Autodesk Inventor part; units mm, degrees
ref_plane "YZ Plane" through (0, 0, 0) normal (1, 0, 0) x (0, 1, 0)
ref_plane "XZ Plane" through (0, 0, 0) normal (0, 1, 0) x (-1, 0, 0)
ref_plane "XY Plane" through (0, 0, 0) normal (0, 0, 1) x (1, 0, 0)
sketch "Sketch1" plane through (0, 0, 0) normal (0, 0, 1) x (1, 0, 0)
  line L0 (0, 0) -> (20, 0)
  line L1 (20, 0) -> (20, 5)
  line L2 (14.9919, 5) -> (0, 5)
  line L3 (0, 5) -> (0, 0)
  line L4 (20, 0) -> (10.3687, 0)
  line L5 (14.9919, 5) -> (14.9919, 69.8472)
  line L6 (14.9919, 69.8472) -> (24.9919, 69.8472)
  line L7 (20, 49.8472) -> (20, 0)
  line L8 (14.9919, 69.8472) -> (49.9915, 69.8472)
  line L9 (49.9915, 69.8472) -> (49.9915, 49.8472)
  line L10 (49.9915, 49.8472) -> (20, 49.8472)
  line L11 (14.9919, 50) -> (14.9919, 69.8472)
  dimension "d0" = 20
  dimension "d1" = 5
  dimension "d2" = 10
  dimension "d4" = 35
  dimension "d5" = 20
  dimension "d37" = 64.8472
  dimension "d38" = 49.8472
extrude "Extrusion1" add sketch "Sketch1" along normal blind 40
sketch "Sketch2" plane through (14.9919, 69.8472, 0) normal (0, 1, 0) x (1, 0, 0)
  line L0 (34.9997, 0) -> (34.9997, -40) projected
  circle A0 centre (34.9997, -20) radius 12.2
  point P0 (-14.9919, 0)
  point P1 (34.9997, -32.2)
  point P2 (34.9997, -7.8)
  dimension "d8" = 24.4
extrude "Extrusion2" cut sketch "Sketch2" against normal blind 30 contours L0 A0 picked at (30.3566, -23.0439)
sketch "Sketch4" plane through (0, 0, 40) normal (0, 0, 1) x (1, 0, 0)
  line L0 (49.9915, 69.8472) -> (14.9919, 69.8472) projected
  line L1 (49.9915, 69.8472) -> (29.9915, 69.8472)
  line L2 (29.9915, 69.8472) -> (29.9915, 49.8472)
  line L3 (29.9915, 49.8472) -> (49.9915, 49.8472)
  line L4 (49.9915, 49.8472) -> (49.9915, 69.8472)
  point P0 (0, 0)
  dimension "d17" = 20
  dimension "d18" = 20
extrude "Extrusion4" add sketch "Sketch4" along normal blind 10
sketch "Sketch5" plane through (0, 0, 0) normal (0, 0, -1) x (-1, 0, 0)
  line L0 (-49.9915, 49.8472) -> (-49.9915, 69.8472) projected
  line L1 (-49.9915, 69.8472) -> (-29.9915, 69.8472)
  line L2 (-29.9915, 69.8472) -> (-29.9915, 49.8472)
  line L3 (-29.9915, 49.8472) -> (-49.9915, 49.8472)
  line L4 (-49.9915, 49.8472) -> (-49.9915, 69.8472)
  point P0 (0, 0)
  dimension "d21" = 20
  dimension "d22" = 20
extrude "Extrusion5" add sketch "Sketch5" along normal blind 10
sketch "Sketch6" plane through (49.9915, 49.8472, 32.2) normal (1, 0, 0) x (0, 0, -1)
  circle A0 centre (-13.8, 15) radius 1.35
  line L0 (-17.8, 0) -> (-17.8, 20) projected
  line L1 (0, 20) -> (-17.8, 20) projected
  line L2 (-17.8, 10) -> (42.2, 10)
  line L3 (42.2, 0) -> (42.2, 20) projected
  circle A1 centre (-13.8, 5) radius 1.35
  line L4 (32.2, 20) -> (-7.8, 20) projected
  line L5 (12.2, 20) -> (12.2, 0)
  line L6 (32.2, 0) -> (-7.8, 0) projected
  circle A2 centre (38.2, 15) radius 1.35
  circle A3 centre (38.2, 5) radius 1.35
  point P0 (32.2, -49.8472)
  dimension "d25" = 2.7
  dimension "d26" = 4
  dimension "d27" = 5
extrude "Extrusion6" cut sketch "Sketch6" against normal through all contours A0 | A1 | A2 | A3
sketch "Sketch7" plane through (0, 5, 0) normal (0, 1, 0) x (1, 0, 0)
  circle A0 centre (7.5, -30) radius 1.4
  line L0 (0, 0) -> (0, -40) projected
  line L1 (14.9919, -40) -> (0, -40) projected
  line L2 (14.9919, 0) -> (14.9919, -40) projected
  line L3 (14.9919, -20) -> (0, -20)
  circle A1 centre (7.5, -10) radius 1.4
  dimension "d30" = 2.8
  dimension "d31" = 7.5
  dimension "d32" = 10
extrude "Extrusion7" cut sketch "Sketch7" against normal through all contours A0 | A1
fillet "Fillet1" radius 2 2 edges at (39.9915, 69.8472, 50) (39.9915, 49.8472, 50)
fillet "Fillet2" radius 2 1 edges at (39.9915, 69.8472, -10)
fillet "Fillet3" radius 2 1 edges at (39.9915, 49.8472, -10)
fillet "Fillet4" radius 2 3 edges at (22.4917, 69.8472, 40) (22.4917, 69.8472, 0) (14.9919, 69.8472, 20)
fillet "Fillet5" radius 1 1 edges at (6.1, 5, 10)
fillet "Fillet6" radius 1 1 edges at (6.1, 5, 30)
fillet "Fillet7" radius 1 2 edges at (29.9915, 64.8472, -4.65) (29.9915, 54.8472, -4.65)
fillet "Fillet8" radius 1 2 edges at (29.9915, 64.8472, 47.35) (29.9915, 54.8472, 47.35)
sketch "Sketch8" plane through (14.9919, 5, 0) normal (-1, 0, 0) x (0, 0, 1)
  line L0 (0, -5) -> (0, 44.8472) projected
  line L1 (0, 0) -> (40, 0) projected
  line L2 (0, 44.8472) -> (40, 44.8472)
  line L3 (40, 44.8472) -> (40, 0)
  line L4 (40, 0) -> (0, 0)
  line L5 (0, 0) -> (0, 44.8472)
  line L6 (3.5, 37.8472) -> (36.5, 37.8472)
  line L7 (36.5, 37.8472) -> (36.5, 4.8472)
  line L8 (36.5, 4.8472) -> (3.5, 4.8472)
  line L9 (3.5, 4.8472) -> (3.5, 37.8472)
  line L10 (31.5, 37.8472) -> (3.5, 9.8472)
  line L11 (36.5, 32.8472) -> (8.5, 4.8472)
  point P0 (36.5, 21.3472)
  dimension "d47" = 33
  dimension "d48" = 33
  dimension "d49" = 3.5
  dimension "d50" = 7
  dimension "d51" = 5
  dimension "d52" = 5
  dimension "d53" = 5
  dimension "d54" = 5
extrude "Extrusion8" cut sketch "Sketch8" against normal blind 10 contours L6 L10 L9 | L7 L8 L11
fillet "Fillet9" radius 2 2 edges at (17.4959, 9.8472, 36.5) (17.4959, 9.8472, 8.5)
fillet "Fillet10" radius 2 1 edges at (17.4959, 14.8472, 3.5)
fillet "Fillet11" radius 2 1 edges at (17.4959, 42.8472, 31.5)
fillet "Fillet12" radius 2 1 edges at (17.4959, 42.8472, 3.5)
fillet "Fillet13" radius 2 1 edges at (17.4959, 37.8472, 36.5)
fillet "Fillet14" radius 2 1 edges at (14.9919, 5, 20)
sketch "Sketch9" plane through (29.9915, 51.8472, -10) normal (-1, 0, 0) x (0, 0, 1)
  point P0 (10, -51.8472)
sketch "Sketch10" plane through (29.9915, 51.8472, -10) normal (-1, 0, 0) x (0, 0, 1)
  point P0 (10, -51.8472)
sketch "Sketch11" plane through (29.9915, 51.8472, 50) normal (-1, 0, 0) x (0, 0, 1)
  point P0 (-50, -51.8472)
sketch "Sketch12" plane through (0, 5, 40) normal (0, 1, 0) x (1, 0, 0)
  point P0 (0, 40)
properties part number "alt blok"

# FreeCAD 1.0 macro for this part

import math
import FreeCAD as App
import Part
import Sketcher
from FreeCAD import Vector


def edges_at(feature, points):
    """Names of the edges that pass closest to the given points."""
    edges = feature.Shape.Edges
    near = lambda p: min(range(len(edges)), key=lambda i: edges[i].distToShape(Part.Vertex(*p))[0])
    return sorted({f"Edge{near(p) + 1}" for p in points})


def add_polygon(sketch, points):
    """Adds a closed chain of lines whose ends are joined by coincident constraints."""
    first, n = sketch.GeometryCount, len(points)
    for a, b in zip(points, points[1:] + points[:1]):
        sketch.addGeometry(Part.LineSegment(App.Vector(*a, 0), App.Vector(*b, 0)), False)
    for i in range(n):
        sketch.addConstraint(Sketcher.Constraint("Coincident", first + i, 2, first + (i + 1) % n, 1))

doc = App.newDocument("Part")
body = doc.addObject("PartDesign::Body", "Body")

sketch1 = body.newObject("Sketcher::SketchObject", "Sketch")
sketch1.AttachmentSupport = (doc.getObject("XY_Plane"), [""])
sketch1.MapMode = "FlatFace"
add_polygon(sketch1, [(0, 5), (0, 0), (20, 0), (20, 50), (50, 50), (50, 70), (15, 70), (15, 5)])
sketch1.addConstraint([
    Sketcher.Constraint("Vertical", 0),
    Sketcher.Constraint("Horizontal", 1),
    Sketcher.Constraint("Vertical", 2),
    Sketcher.Constraint("Horizontal", 3),
    Sketcher.Constraint("Vertical", 4),
    Sketcher.Constraint("Horizontal", 5),
    Sketcher.Constraint("Vertical", 6),
    Sketcher.Constraint("Horizontal", 7),
    Sketcher.Constraint("Coincident", 0, 2, -1, 1),
    Sketcher.Constraint("Equal", 1, 4),
    Sketcher.Constraint("DistanceX", 1, 1, 1, 2, 20.0),
    Sketcher.Constraint("DistanceY", 0, 2, 0, 1, 5.0),
    Sketcher.Constraint("DistanceX", 5, 2, 5, 1, 34.9996),
    Sketcher.Constraint("DistanceY", 2, 1, 2, 2, 49.8472),
    Sketcher.Constraint("DistanceX", 7, 2, 7, 1, 14.992),
])
pad1 = body.newObject("PartDesign::Pad", "Pad")
pad1.Profile = sketch1
pad1.Length = 40

sketch2 = body.newObject("Sketcher::SketchObject", "Sketch001")
sketch2.AttachmentSupport = (doc.getObject("XZ_Plane"), [""])
sketch2.MapMode = "FlatFace"
sketch2.AttachmentOffset = App.Placement(Vector(0, 0, -69.8472), App.Rotation())
sketch2.addGeometry([
    Part.LineSegment(Vector(50, 32, 0), Vector(50, 8, 0)),
    Part.ArcOfCircle(Part.Circle(Vector(50, 20, 0), Vector(0, 0, 1), 12), math.radians(90), math.radians(270)),
], False)
sketch2.addConstraint([
    Sketcher.Constraint("Coincident", 0, 1, 1, 1),
    Sketcher.Constraint("Coincident", 1, 2, 0, 2),
    Sketcher.Constraint("Vertical", 0),
    Sketcher.Constraint("Vertical", 1, 3, 0, 1),
    Sketcher.Constraint("Radius", 1, 12.2),
    Sketcher.Constraint("DistanceY", -1, 1, 1, 3, 20.0),
    Sketcher.Constraint("DistanceX", -1, 1, 1, 3, 49.9916),
])
pocket1 = body.newObject("PartDesign::Pocket", "Pocket")
pocket1.Profile = sketch2
pocket1.Length = 30
pocket1.Reversed = True

sketch3 = body.newObject("Sketcher::SketchObject", "Sketch002")
sketch3.AttachmentSupport = (doc.getObject("XY_Plane"), [""])
sketch3.MapMode = "FlatFace"
sketch3.AttachmentOffset = App.Placement(Vector(0, 0, 40), App.Rotation())
add_polygon(sketch3, [(50, 50), (50, 70), (30, 70), (30, 50)])
sketch3.addConstraint([
    Sketcher.Constraint("Vertical", 0),
    Sketcher.Constraint("Horizontal", 1),
    Sketcher.Constraint("Vertical", 2),
    Sketcher.Constraint("Horizontal", 3),
    Sketcher.Constraint("Equal", 3, 0),
    Sketcher.Constraint("DistanceX", 1, 2, 1, 1, 20.0),
    Sketcher.Constraint("DistanceX", -1, 1, 0, 2, 49.9915),
    Sketcher.Constraint("DistanceY", -1, 1, 0, 2, 69.8472),
])
pad2 = body.newObject("PartDesign::Pad", "Pad001")
pad2.Profile = sketch3
pad2.Length = 10

sketch4 = body.newObject("Sketcher::SketchObject", "Sketch003")
sketch4.AttachmentSupport = (doc.getObject("XY_Plane"), [""])
sketch4.MapMode = "FlatFace"
add_polygon(sketch4, [(50, 70), (50, 50), (30, 50), (30, 70)])
sketch4.addConstraint([
    Sketcher.Constraint("Vertical", 0),
    Sketcher.Constraint("Horizontal", 1),
    Sketcher.Constraint("Vertical", 2),
    Sketcher.Constraint("Horizontal", 3),
    Sketcher.Constraint("Equal", 3, 0),
    Sketcher.Constraint("DistanceX", 1, 2, 1, 1, 20.0),
    Sketcher.Constraint("DistanceX", -1, 1, 0, 2, 49.9915),
    Sketcher.Constraint("DistanceY", -1, 1, 0, 2, 49.8472),
])
pad3 = body.newObject("PartDesign::Pad", "Pad002")
pad3.Profile = sketch4
pad3.Length = 10
pad3.Reversed = True

sketch5 = body.newObject("Sketcher::SketchObject", "Sketch004")
sketch5.AttachmentSupport = (doc.getObject("YZ_Plane"), [""])
sketch5.MapMode = "FlatFace"
sketch5.AttachmentOffset = App.Placement(Vector(0, 0, 49.9915), App.Rotation())
sketch5.addGeometry([
    Part.Circle(Vector(64.8, 46, 0), Vector(0, 0, 1), 1.4),
    Part.Circle(Vector(54.8, 46, 0), Vector(0, 0, 1), 1.4),
    Part.Circle(Vector(64.8, -6, 0), Vector(0, 0, 1), 1.4),
    Part.Circle(Vector(54.8, -6, 0), Vector(0, 0, 1), 1.4),
], False)
sketch5.addConstraint([
    Sketcher.Constraint("Equal", 0, 1),
    Sketcher.Constraint("Equal", 1, 2),
    Sketcher.Constraint("Equal", 2, 3),
    Sketcher.Constraint("Horizontal", 0, 3, 1, 3),
    Sketcher.Constraint("Horizontal", 2, 3, 3, 3),
    Sketcher.Constraint("Vertical", 0, 3, 2, 3),
    Sketcher.Constraint("Vertical", 1, 3, 3, 3),
    Sketcher.Constraint("Diameter", 0, 2.7),
    Sketcher.Constraint("DistanceY", -1, 1, 0, 3, 46.0),
    Sketcher.Constraint("DistanceY", 2, 3, -1, 1, 6.0),
    Sketcher.Constraint("DistanceX", 1, 3, 0, 3, 10.0),
    Sketcher.Constraint("DistanceX", -1, 1, 0, 3, 64.8472),
])
pocket2 = body.newObject("PartDesign::Pocket", "Pocket001")
pocket2.Profile = sketch5
pocket2.Type = "ThroughAll"

sketch6 = body.newObject("Sketcher::SketchObject", "Sketch005")
sketch6.AttachmentSupport = (doc.getObject("XZ_Plane"), [""])
sketch6.MapMode = "FlatFace"
sketch6.AttachmentOffset = App.Placement(Vector(0, 0, -5), App.Rotation())
sketch6.addGeometry([
    Part.Circle(Vector(7.5, 30, 0), Vector(0, 0, 1), 1.4),
    Part.Circle(Vector(7.5, 10, 0), Vector(0, 0, 1), 1.4),
], False)
sketch6.addConstraint([
    Sketcher.Constraint("Equal", 0, 1),
    Sketcher.Constraint("Vertical", 0, 3, 1, 3),
    Sketcher.Constraint("Diameter", 0, 2.8),
    Sketcher.Constraint("DistanceY", -1, 1, 1, 3, 10.0),
    Sketcher.Constraint("DistanceX", -1, 1, 0, 3, 7.5),
    Sketcher.Constraint("DistanceY", -1, 1, 0, 3, 30.0),
])
pocket3 = body.newObject("PartDesign::Pocket", "Pocket002")
pocket3.Profile = sketch6
pocket3.Type = "ThroughAll"
pocket3.Reversed = True
doc.recompute()

fillet = body.newObject("PartDesign::Fillet", "Fillet")
fillet.Base = (pocket3, edges_at(pocket3, [(39.992, 69.847, 50), (39.992, 49.847, 50)]))
fillet.Radius = 2
doc.recompute()

fillet2 = body.newObject("PartDesign::Fillet", "Fillet001")
fillet2.Base = (fillet, edges_at(fillet, [(39.992, 69.847, -10)]))
fillet2.Radius = 2
doc.recompute()

fillet3 = body.newObject("PartDesign::Fillet", "Fillet002")
fillet3.Base = (fillet2, edges_at(fillet2, [(39.992, 49.847, -10)]))
fillet3.Radius = 2
doc.recompute()

fillet4 = body.newObject("PartDesign::Fillet", "Fillet003")
fillet4.Base = (fillet3, edges_at(fillet3, [(22.492, 69.847, 40), (22.492, 69.847, 0), (14.992, 69.847, 20)]))
fillet4.Radius = 2
doc.recompute()

fillet5 = body.newObject("PartDesign::Fillet", "Fillet004")
fillet5.Base = (fillet4, edges_at(fillet4, [(6.1, 5, 10)]))
fillet5.Radius = 1
doc.recompute()

fillet6 = body.newObject("PartDesign::Fillet", "Fillet005")
fillet6.Base = (fillet5, edges_at(fillet5, [(6.1, 5, 30)]))
fillet6.Radius = 1
doc.recompute()

fillet7 = body.newObject("PartDesign::Fillet", "Fillet006")
fillet7.Base = (fillet6, edges_at(fillet6, [(29.991, 64.847, -4.65), (29.991, 54.847, -4.65)]))
fillet7.Radius = 1
doc.recompute()

fillet8 = body.newObject("PartDesign::Fillet", "Fillet007")
fillet8.Base = (fillet7, edges_at(fillet7, [(29.991, 64.847, 47.35), (29.991, 54.847, 47.35)]))
fillet8.Radius = 1

sketch7 = body.newObject("Sketcher::SketchObject", "Sketch006")
sketch7.AttachmentSupport = (doc.getObject("YZ_Plane"), [""])
sketch7.MapMode = "FlatFace"
sketch7.AttachmentOffset = App.Placement(Vector(0, 0, 14.9919), App.Rotation())
add_polygon(sketch7, [(43, 32), (43, 4), (15, 4)])
add_polygon(sketch7, [(10, 36), (38, 36), (10, 8)])
sketch7.addConstraint([
    Sketcher.Constraint("Vertical", 0),
    Sketcher.Constraint("Horizontal", 1),
    Sketcher.Constraint("Horizontal", 3),
    Sketcher.Constraint("Vertical", 5),
    Sketcher.Constraint("Parallel", 2, 4),
    Sketcher.Constraint("Equal", 1, 3),
    Sketcher.Constraint("Equal", 3, 0),
    Sketcher.Constraint("DistanceX", 3, 2, 2, 2, 5.0),
    Sketcher.Constraint("DistanceY", 2, 2, 3, 2, 5.0),
    Sketcher.Constraint("DistanceY", 0, 2, 3, 2, 33.0),
    Sketcher.Constraint("DistanceY", -1, 1, 0, 2, 3.5),
    Sketcher.Constraint("DistanceX", -1, 1, 0, 2, 42.8472),
])
pocket4 = body.newObject("PartDesign::Pocket", "Pocket003")
pocket4.Profile = sketch7
pocket4.Length = 10
pocket4.Reversed = True
doc.recompute()

fillet9 = body.newObject("PartDesign::Fillet", "Fillet008")
fillet9.Base = (pocket4, edges_at(pocket4, [(17.496, 9.847, 36.5), (17.496, 9.847, 8.5)]))
fillet9.Radius = 2
doc.recompute()

fillet10 = body.newObject("PartDesign::Fillet", "Fillet009")
fillet10.Base = (fillet9, edges_at(fillet9, [(17.496, 14.847, 3.5)]))
fillet10.Radius = 2
doc.recompute()

fillet11 = body.newObject("PartDesign::Fillet", "Fillet010")
fillet11.Base = (fillet10, edges_at(fillet10, [(17.496, 42.847, 31.5)]))
fillet11.Radius = 2
doc.recompute()

fillet12 = body.newObject("PartDesign::Fillet", "Fillet011")
fillet12.Base = (fillet11, edges_at(fillet11, [(17.496, 42.847, 3.5)]))
fillet12.Radius = 2
doc.recompute()

fillet13 = body.newObject("PartDesign::Fillet", "Fillet012")
fillet13.Base = (fillet12, edges_at(fillet12, [(17.496, 37.847, 36.5)]))
fillet13.Radius = 2
doc.recompute()

fillet14 = body.newObject("PartDesign::Fillet", "Fillet013")
fillet14.Base = (fillet13, edges_at(fillet13, [(14.992, 5, 20)]))
fillet14.Radius = 2

doc.recompute()
